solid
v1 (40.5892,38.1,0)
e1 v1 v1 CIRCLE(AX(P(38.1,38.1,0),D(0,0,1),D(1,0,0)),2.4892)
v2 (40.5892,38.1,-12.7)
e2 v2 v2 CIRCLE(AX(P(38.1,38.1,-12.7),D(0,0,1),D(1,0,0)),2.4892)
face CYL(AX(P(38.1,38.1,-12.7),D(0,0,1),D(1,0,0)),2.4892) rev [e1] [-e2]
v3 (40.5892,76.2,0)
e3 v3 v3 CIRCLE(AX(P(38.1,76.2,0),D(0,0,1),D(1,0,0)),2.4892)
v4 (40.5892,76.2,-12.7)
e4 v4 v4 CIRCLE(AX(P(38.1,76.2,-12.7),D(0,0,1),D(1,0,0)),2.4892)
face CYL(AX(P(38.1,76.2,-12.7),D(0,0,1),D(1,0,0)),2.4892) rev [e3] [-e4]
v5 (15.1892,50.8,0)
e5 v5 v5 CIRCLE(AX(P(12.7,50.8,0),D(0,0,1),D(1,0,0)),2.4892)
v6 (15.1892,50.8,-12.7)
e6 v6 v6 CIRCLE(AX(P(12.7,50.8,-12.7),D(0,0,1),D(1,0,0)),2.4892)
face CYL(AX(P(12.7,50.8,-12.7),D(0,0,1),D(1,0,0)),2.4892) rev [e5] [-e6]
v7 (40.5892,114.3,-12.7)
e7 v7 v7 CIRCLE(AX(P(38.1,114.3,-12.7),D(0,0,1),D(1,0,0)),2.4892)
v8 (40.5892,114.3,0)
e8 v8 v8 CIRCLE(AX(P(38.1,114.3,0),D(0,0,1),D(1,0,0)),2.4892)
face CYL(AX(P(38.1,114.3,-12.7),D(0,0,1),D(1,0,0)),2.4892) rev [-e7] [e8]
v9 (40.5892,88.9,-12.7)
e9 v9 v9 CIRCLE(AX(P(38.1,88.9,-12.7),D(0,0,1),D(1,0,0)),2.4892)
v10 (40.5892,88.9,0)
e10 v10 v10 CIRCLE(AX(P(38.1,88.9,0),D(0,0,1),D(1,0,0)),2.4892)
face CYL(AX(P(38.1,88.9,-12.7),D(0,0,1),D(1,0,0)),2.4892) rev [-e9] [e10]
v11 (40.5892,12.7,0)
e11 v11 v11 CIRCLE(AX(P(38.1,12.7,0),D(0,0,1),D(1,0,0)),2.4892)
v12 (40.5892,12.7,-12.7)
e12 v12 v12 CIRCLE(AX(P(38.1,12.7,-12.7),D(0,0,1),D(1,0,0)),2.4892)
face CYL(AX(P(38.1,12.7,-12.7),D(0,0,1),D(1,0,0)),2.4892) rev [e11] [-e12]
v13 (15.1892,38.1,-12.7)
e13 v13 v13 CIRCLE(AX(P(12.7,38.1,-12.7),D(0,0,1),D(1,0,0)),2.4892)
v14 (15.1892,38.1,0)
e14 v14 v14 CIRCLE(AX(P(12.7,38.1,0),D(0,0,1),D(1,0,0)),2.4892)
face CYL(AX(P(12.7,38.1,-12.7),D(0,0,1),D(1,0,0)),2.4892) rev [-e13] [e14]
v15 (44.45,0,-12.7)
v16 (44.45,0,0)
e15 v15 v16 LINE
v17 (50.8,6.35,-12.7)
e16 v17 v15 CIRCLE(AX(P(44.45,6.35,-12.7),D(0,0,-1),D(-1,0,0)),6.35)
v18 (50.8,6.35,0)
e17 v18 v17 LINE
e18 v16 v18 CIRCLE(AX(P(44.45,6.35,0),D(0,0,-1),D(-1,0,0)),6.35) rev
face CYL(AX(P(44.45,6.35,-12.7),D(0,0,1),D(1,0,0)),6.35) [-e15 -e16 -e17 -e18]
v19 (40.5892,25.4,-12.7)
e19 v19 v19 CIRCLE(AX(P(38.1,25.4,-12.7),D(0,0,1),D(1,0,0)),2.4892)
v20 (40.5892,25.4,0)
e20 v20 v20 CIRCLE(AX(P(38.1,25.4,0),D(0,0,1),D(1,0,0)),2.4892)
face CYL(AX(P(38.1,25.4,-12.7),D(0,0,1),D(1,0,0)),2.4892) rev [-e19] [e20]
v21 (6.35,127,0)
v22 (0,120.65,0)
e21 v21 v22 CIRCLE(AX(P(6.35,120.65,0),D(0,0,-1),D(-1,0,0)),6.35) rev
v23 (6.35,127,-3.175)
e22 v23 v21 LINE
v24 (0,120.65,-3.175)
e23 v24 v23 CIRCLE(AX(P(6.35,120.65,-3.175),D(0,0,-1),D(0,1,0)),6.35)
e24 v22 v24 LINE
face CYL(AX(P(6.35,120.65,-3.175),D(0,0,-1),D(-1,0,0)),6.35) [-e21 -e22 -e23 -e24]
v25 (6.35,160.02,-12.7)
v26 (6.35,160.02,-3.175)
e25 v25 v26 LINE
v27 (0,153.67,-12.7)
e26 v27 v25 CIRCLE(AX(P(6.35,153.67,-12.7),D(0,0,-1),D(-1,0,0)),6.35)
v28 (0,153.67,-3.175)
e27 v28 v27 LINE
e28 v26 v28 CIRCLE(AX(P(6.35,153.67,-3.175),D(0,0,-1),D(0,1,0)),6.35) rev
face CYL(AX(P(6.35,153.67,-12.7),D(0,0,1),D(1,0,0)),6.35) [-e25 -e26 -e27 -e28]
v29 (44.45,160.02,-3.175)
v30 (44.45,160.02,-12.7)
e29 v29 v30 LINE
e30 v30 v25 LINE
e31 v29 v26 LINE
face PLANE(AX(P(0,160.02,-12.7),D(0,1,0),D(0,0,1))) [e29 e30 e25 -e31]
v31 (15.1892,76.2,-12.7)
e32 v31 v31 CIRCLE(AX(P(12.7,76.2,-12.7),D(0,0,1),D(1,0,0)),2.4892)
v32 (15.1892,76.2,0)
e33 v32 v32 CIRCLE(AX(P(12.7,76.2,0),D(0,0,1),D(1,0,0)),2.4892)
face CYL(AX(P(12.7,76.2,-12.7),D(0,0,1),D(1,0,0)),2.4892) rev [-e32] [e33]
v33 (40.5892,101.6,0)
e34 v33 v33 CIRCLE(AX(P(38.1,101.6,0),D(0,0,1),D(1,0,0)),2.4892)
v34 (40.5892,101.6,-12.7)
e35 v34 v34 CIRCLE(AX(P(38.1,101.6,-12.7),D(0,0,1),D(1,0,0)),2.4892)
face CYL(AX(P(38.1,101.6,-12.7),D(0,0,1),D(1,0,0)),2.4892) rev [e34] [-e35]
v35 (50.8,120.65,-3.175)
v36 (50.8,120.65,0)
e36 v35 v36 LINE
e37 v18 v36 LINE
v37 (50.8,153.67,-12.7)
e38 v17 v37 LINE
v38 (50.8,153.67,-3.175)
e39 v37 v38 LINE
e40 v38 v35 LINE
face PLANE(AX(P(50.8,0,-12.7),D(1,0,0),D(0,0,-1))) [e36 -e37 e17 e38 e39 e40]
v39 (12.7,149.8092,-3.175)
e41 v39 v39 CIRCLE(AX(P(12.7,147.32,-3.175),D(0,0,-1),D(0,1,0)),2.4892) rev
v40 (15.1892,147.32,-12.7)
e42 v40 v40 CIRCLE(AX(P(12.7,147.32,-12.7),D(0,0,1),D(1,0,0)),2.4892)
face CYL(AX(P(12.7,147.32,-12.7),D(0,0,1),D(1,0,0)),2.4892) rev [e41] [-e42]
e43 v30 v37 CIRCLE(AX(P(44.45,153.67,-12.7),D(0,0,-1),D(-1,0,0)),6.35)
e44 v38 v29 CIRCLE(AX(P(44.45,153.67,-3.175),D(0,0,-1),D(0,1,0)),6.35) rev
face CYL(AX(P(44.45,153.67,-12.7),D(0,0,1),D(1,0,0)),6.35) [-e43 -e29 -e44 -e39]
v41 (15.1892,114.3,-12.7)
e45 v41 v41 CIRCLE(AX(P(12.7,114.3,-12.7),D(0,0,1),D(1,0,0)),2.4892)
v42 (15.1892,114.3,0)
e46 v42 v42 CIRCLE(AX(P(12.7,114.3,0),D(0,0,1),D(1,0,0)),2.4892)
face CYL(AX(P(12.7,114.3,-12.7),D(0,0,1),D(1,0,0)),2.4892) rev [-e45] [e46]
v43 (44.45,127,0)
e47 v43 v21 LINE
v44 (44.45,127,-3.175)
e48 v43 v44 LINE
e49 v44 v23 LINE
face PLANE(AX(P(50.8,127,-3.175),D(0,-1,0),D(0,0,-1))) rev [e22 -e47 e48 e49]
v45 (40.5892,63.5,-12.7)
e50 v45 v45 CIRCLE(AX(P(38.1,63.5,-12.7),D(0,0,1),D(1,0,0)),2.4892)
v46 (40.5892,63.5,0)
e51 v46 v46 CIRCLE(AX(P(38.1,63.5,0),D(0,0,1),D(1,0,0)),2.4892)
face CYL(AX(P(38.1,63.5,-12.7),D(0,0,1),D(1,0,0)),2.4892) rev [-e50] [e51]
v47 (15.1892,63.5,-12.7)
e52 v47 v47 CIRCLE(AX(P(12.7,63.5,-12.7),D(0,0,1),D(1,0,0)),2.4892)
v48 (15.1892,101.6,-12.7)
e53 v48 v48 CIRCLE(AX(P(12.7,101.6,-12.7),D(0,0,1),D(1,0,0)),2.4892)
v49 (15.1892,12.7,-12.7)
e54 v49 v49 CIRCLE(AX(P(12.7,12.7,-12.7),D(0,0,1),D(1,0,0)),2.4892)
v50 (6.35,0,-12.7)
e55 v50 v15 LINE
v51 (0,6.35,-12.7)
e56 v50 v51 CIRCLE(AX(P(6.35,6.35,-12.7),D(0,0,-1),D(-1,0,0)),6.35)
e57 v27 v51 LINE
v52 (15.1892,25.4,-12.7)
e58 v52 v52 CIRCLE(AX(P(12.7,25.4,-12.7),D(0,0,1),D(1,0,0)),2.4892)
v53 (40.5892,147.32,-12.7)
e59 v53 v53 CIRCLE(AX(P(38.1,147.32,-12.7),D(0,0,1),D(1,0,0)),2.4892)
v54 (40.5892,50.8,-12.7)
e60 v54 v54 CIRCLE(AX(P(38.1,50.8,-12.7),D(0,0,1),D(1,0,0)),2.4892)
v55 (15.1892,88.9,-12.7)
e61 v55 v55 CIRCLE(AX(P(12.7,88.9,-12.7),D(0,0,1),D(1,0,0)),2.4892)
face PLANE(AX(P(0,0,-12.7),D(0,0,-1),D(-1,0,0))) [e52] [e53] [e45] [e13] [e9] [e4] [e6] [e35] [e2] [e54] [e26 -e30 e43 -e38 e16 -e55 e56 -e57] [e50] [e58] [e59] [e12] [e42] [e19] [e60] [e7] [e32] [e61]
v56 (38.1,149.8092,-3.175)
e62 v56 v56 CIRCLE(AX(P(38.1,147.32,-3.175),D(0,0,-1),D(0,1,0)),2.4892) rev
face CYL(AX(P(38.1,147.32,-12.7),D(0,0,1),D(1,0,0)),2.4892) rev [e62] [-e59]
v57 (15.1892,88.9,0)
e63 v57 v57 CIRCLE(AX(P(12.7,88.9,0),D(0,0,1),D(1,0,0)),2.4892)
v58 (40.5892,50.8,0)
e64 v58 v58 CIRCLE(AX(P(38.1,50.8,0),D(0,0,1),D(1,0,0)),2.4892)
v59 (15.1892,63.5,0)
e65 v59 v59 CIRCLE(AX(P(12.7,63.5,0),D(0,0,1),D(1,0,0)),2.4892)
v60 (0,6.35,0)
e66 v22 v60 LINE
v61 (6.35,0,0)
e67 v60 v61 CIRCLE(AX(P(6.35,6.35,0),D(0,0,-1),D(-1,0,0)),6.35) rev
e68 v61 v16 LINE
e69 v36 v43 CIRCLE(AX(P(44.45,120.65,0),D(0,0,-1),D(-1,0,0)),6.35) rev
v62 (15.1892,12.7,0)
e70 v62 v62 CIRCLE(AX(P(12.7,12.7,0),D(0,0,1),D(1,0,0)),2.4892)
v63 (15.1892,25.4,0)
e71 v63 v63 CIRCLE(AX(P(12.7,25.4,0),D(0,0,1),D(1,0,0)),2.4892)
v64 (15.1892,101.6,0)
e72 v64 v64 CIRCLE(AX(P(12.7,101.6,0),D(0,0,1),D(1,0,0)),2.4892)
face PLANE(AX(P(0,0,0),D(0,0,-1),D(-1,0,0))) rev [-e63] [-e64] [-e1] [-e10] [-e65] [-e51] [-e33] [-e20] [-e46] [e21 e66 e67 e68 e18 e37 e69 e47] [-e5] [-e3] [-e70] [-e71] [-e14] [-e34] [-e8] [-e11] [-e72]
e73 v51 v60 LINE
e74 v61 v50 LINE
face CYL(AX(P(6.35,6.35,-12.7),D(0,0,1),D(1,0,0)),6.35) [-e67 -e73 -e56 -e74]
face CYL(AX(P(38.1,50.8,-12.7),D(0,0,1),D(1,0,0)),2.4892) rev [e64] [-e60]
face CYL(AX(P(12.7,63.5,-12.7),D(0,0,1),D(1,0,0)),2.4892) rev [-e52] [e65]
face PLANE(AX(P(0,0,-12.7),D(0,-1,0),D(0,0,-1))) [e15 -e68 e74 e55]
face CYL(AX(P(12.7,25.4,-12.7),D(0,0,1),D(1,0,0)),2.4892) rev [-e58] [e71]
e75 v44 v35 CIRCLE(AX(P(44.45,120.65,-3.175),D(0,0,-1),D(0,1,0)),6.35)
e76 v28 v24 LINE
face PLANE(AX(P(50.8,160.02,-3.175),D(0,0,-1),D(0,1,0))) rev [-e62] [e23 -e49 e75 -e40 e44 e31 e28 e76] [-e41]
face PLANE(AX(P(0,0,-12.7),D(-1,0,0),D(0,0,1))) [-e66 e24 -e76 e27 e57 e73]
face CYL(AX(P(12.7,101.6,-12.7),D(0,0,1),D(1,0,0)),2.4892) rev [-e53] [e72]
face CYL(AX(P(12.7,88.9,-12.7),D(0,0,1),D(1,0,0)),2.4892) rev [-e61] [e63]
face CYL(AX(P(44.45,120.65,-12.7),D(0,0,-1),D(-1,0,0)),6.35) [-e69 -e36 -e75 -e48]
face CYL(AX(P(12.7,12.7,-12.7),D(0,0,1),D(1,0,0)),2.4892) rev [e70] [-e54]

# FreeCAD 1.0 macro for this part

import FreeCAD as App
import Part
import Sketcher
Q = App.Units.Quantity


def edges_at(feature, points):
    """Names of the edges that pass closest to the given points."""
    edges = feature.Shape.Edges
    near = lambda p: min(range(len(edges)), key=lambda i: edges[i].distToShape(Part.Vertex(*p))[0])
    return sorted({f"Edge{near(p) + 1}" for p in points})


def add_polygon(sketch, points):
    """Adds a closed chain of lines whose ends are joined by coincident constraints."""
    first, n = sketch.GeometryCount, len(points)
    for a, b in zip(points, points[1:] + points[:1]):
        sketch.addGeometry(Part.LineSegment(App.Vector(*a, 0), App.Vector(*b, 0)), False)
    for i in range(n):
        sketch.addConstraint(Sketcher.Constraint("Coincident", first + i, 2, first + (i + 1) % n, 1))

doc = App.newDocument("Part")
body = doc.addObject("PartDesign::Body", "Body")

# Sketch on XY plane
sketch1 = body.newObject("Sketcher::SketchObject", "Sketch")
sketch1.AttachmentSupport = (doc.getObject("XY_Plane"), [""])
sketch1.MapMode = "FlatFace"
add_polygon(sketch1, [(0, 160.02), (0, 0), (50.8, 0), (50.8, 160.02)])  # lines 0-3
sketch1.addConstraint([
    Sketcher.Constraint("Vertical", 0),
    Sketcher.Constraint("Horizontal", 1),
    Sketcher.Constraint("Vertical", 2),
    Sketcher.Constraint("Horizontal", 3),
    Sketcher.Constraint("Coincident", 0, 2, -1, 1),
    Sketcher.Constraint("DistanceX", 1, 1, 1, 2, Q("2 in")),
    Sketcher.Constraint("DistanceY", 0, 2, 0, 1, Q("6.3 in")),
])
pad1 = body.newObject("PartDesign::Pad", "Pad")
pad1.Profile = sketch1
pad1.Length = Q("0.5 in")
pad1.Reversed = True

# Sketch on XY plane
sketch2 = body.newObject("Sketcher::SketchObject", "Sketch001")
sketch2.AttachmentSupport = (doc.getObject("XY_Plane"), [""])
sketch2.MapMode = "FlatFace"
sketch2.addGeometry([
    Part.Circle(App.Vector(12.7, 147.32, 0), App.Vector(0, 0, 1), 2.4892),  # 0
    Part.Circle(App.Vector(38.1, 147.32, 0), App.Vector(0, 0, 1), 2.4892),  # 1
    Part.Circle(App.Vector(12.7, 114.3, 0), App.Vector(0, 0, 1), 2.4892),  # 2
    Part.Circle(App.Vector(12.7, 101.6, 0), App.Vector(0, 0, 1), 2.4892),  # 3
    Part.Circle(App.Vector(12.7, 88.9, 0), App.Vector(0, 0, 1), 2.4892),  # 4
    Part.Circle(App.Vector(12.7, 76.2, 0), App.Vector(0, 0, 1), 2.4892),  # 5
    Part.Circle(App.Vector(12.7, 63.5, 0), App.Vector(0, 0, 1), 2.4892),  # 6
    Part.Circle(App.Vector(38.1, 101.6, 0), App.Vector(0, 0, 1), 2.4892),  # 7
    Part.Circle(App.Vector(38.1, 88.9, 0), App.Vector(0, 0, 1), 2.4892),  # 8
    Part.Circle(App.Vector(38.1, 76.2, 0), App.Vector(0, 0, 1), 2.4892),  # 9
    Part.Circle(App.Vector(38.1, 63.5, 0), App.Vector(0, 0, 1), 2.4892),  # 10
    Part.Circle(App.Vector(38.1, 114.3, 0), App.Vector(0, 0, 1), 2.4892),  # 11
    Part.Circle(App.Vector(12.7, 50.8, 0), App.Vector(0, 0, 1), 2.4892),  # 12
    Part.Circle(App.Vector(12.7, 38.1, 0), App.Vector(0, 0, 1), 2.4892),  # 13
    Part.Circle(App.Vector(12.7, 25.4, 0), App.Vector(0, 0, 1), 2.4892),  # 14
    Part.Circle(App.Vector(12.7, 12.7, 0), App.Vector(0, 0, 1), 2.4892),  # 15
    Part.Circle(App.Vector(38.1, 50.8, 0), App.Vector(0, 0, 1), 2.4892),  # 16
    Part.Circle(App.Vector(38.1, 38.1, 0), App.Vector(0, 0, 1), 2.4892),  # 17
    Part.Circle(App.Vector(38.1, 25.4, 0), App.Vector(0, 0, 1), 2.4892),  # 18
    Part.Circle(App.Vector(38.1, 12.7, 0), App.Vector(0, 0, 1), 2.4892),  # 19
], False)
sketch2.addConstraint([
    Sketcher.Constraint("Equal", 0, 1),
    Sketcher.Constraint("Equal", 1, 2),
    Sketcher.Constraint("Equal", 2, 3),
    Sketcher.Constraint("Equal", 3, 4),
    Sketcher.Constraint("Equal", 4, 5),
    Sketcher.Constraint("Equal", 5, 6),
    Sketcher.Constraint("Equal", 6, 7),
    Sketcher.Constraint("Equal", 7, 8),
    Sketcher.Constraint("Equal", 8, 9),
    Sketcher.Constraint("Equal", 9, 10),
    Sketcher.Constraint("Equal", 10, 11),
    Sketcher.Constraint("Equal", 11, 12),
    Sketcher.Constraint("Equal", 12, 13),
    Sketcher.Constraint("Equal", 13, 14),
    Sketcher.Constraint("Equal", 14, 15),
    Sketcher.Constraint("Equal", 15, 16),
    Sketcher.Constraint("Equal", 16, 17),
    Sketcher.Constraint("Equal", 17, 18),
    Sketcher.Constraint("Equal", 18, 19),
    Sketcher.Constraint("Horizontal", 0, 3, 1, 3),
    Sketcher.Constraint("Horizontal", 3, 3, 7, 3),
    Sketcher.Constraint("Horizontal", 4, 3, 8, 3),
    Sketcher.Constraint("Horizontal", 5, 3, 9, 3),
    Sketcher.Constraint("Horizontal", 6, 3, 10, 3),
    Sketcher.Constraint("Horizontal", 2, 3, 11, 3),
    Sketcher.Constraint("Horizontal", 12, 3, 16, 3),
    Sketcher.Constraint("Horizontal", 13, 3, 17, 3),
    Sketcher.Constraint("Horizontal", 14, 3, 18, 3),
    Sketcher.Constraint("Horizontal", 15, 3, 19, 3),
    Sketcher.Constraint("Vertical", 0, 3, 2, 3),
    Sketcher.Constraint("Vertical", 2, 3, 3, 3),
    Sketcher.Constraint("Vertical", 3, 3, 4, 3),
    Sketcher.Constraint("Vertical", 4, 3, 5, 3),
    Sketcher.Constraint("Vertical", 5, 3, 6, 3),
    Sketcher.Constraint("Vertical", 1, 3, 7, 3),
    Sketcher.Constraint("Vertical", 7, 3, 8, 3),
    Sketcher.Constraint("Vertical", 8, 3, 9, 3),
    Sketcher.Constraint("Vertical", 9, 3, 10, 3),
    Sketcher.Constraint("Vertical", 10, 3, 11, 3),
    Sketcher.Constraint("Vertical", 6, 3, 12, 3),
    Sketcher.Constraint("Vertical", 12, 3, 13, 3),
    Sketcher.Constraint("Vertical", 13, 3, 14, 3),
    Sketcher.Constraint("Vertical", 14, 3, 15, 3),
    Sketcher.Constraint("Vertical", 11, 3, 16, 3),
    Sketcher.Constraint("Vertical", 16, 3, 17, 3),
    Sketcher.Constraint("Vertical", 17, 3, 18, 3),
    Sketcher.Constraint("Vertical", 18, 3, 19, 3),
    Sketcher.Constraint("Diameter", 0, Q("0.196 in")),
    Sketcher.Constraint("DistanceY", -1, 1, 3, 3, Q("4 in")),
    Sketcher.Constraint("DistanceY", -1, 1, 5, 3, Q("3 in")),
    Sketcher.Constraint("DistanceY", -1, 1, 12, 3, Q("2 in")),
    Sketcher.Constraint("DistanceY", -1, 1, 14, 3, Q("1 in")),
    Sketcher.Constraint("DistanceX", 0, 3, 1, 3, Q("1 in")),
    Sketcher.Constraint("DistanceY", 4, 3, 2, 3, Q("1 in")),
    Sketcher.Constraint("DistanceY", 6, 3, 4, 3, Q("1 in")),
    Sketcher.Constraint("DistanceY", 13, 3, 6, 3, Q("1 in")),
    Sketcher.Constraint("DistanceY", 15, 3, 13, 3, Q("1 in")),
    Sketcher.Constraint("DistanceX", -1, 1, 0, 3, Q("0.5 in")),
    Sketcher.Constraint("DistanceY", -1, 1, 0, 3, Q("5.8 in")),
    Sketcher.Constraint("DistanceY", -1, 1, 2, 3, Q("4.5 in")),
])
pocket1 = body.newObject("PartDesign::Pocket", "Pocket")
pocket1.Profile = sketch2
pocket1.Type = "ThroughAll"
doc.recompute()

fillet = body.newObject("PartDesign::Fillet", "Fillet")
fillet.Base = (pocket1, edges_at(pocket1, [
    (0, 160.02, -6.35),
    (50.8, 160.02, -6.35),
    (50.8, 0, -6.35),
    (0, 0, -6.35),
]))
fillet.Radius = Q("0.25 in")

# Sketch on YZ plane
sketch3 = body.newObject("Sketcher::SketchObject", "Sketch002")
sketch3.AttachmentSupport = (doc.getObject("YZ_Plane"), [""])
sketch3.MapMode = "FlatFace"
add_polygon(sketch3, [(160.02, -3.175), (127, -3.175), (127, 0), (160.02, 0)])  # lines 0-3
sketch3.addConstraint([
    Sketcher.Constraint("Horizontal", 0),
    Sketcher.Constraint("Vertical", 1),
    Sketcher.Constraint("Horizontal", 2),
    Sketcher.Constraint("Vertical", 3),
    Sketcher.Constraint("PointOnObject", 1, 2, -1),
    Sketcher.Constraint("DistanceX", 0, 2, 0, 1, Q("1.3 in")),
    Sketcher.Constraint("DistanceX", -1, 1, 0, 2, Q("5 in")),
    Sketcher.Constraint("DistanceY", 1, 1, 1, 2, Q("0.125 in")),
])
pocket2 = body.newObject("PartDesign::Pocket", "Pocket001")
pocket2.Profile = sketch3
pocket2.Type = "ThroughAll"
pocket2.Reversed = True
doc.recompute()

fillet2 = body.newObject("PartDesign::Fillet", "Fillet001")
fillet2.Base = (pocket2, edges_at(pocket2, [(0, 127, -1.587), (50.8, 127, -1.587)]))
fillet2.Radius = Q("0.25 in")

doc.recompute()
